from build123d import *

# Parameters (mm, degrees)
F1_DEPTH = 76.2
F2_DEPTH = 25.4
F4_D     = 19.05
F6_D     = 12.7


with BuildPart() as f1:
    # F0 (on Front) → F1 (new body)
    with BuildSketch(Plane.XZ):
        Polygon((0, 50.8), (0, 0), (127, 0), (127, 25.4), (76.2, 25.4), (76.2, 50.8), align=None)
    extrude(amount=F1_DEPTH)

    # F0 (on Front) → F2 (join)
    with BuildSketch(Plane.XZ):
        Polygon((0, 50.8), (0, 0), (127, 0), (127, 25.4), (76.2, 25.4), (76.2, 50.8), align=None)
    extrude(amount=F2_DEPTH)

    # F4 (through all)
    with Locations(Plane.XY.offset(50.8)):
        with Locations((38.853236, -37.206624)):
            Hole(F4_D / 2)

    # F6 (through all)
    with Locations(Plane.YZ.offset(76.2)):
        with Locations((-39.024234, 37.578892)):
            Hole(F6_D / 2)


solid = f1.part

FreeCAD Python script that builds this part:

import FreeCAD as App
import Part
import Sketcher
from FreeCAD import Vector
Q = App.Units.Quantity

doc = App.newDocument("Part")
body = doc.addObject("PartDesign::Body", "Body")

# Sketch on XZ plane
sketch1 = body.newObject("Sketcher::SketchObject", "Sketch")
sketch1.AttachmentSupport = (doc.getObject("XZ_Plane"), [""])
sketch1.MapMode = "FlatFace"
sketch1.addGeometry([
    Part.LineSegment(Vector(0, 51, 0), Vector(0, 0, 0)),  # 0
    Part.LineSegment(Vector(0, 0, 0), Vector(127, 0, 0)),  # 1
    Part.LineSegment(Vector(127, 0, 0), Vector(127, 25, 0)),  # 2
    Part.LineSegment(Vector(127, 25, 0), Vector(76, 25, 0)),  # 3
    Part.LineSegment(Vector(76, 25, 0), Vector(76, 51, 0)),  # 4
    Part.LineSegment(Vector(76, 51, 0), Vector(0, 51, 0)),  # 5
], False)
sketch1.addConstraint([
    Sketcher.Constraint("Coincident", 0, 2, 1, 1),
    Sketcher.Constraint("Coincident", 1, 2, 2, 1),
    Sketcher.Constraint("Coincident", 2, 2, 3, 1),
    Sketcher.Constraint("Coincident", 3, 2, 4, 1),
    Sketcher.Constraint("Coincident", 4, 2, 5, 1),
    Sketcher.Constraint("Coincident", 5, 2, 0, 1),
    Sketcher.Constraint("Vertical", 0),
    Sketcher.Constraint("Horizontal", 1),
    Sketcher.Constraint("Vertical", 2),
    Sketcher.Constraint("Horizontal", 3),
    Sketcher.Constraint("Vertical", 4),
    Sketcher.Constraint("Horizontal", 5),
    Sketcher.Constraint("Coincident", 0, 2, -1, 1),
    Sketcher.Constraint("Equal", 3, 0),
    Sketcher.Constraint("Equal", 2, 4),
    Sketcher.Constraint("DistanceX", 1, 1, 1, 2, Q("5 in")),
    Sketcher.Constraint("DistanceX", 3, 2, 3, 1, Q("2 in")),
])
pad1 = body.newObject("PartDesign::Pad", "Pad")
pad1.Profile = sketch1
pad1.Length = Q("3 in")

# Sketch on XZ plane
sketch2 = body.newObject("Sketcher::SketchObject", "Sketch001")
sketch2.AttachmentSupport = (doc.getObject("XZ_Plane"), [""])
sketch2.MapMode = "FlatFace"
sketch2.addGeometry([
    Part.LineSegment(Vector(0, 51, 0), Vector(0, 0, 0)),  # 0
    Part.LineSegment(Vector(0, 0, 0), Vector(127, 0, 0)),  # 1
    Part.LineSegment(Vector(127, 0, 0), Vector(127, 25, 0)),  # 2
    Part.LineSegment(Vector(127, 25, 0), Vector(76, 25, 0)),  # 3
    Part.LineSegment(Vector(76, 25, 0), Vector(76, 51, 0)),  # 4
    Part.LineSegment(Vector(76, 51, 0), Vector(0, 51, 0)),  # 5
], False)
sketch2.addConstraint([
    Sketcher.Constraint("Coincident", 0, 2, 1, 1),
    Sketcher.Constraint("Coincident", 1, 2, 2, 1),
    Sketcher.Constraint("Coincident", 2, 2, 3, 1),
    Sketcher.Constraint("Coincident", 3, 2, 4, 1),
    Sketcher.Constraint("Coincident", 4, 2, 5, 1),
    Sketcher.Constraint("Coincident", 5, 2, 0, 1),
    Sketcher.Constraint("Vertical", 0),
    Sketcher.Constraint("Horizontal", 1),
    Sketcher.Constraint("Vertical", 2),
    Sketcher.Constraint("Horizontal", 3),
    Sketcher.Constraint("Vertical", 4),
    Sketcher.Constraint("Horizontal", 5),
    Sketcher.Constraint("Coincident", 0, 2, -1, 1),
    Sketcher.Constraint("Equal", 3, 0),
    Sketcher.Constraint("Equal", 2, 4),
    Sketcher.Constraint("DistanceX", 1, 1, 1, 2, Q("5 in")),
    Sketcher.Constraint("DistanceX", 3, 2, 3, 1, Q("2 in")),
])
pad2 = body.newObject("PartDesign::Pad", "Pad001")
pad2.Profile = sketch2
pad2.Length = Q("1 in")

# Sketch on XY plane
sketch3 = body.newObject("Sketcher::SketchObject", "Sketch002")
sketch3.AttachmentSupport = (doc.getObject("XY_Plane"), [""])
sketch3.MapMode = "FlatFace"
sketch3.AttachmentOffset = App.Placement(Vector(0, 0, 2 * 25.4), App.Rotation())
sketch3.addGeometry(Part.Circle(Vector(39, -37, 0), Vector(0, 0, 1), 10), False)
sketch3.addConstraint([
    Sketcher.Constraint("Diameter", 0, Q("0.75 in")),
    Sketcher.Constraint("DistanceX", -1, 1, 0, 3, 38.853236),
    Sketcher.Constraint("DistanceY", 0, 3, -1, 1, 37.206624),
])
doc.recompute()
hole = body.newObject("PartDesign::Hole", "Hole")
hole.Profile = sketch3
hole.ThreadType = "None"
hole.Diameter = Q("0.75 in")
hole.DepthType = "ThroughAll"

# Sketch on YZ plane
sketch4 = body.newObject("Sketcher::SketchObject", "Sketch003")
sketch4.AttachmentSupport = (doc.getObject("YZ_Plane"), [""])
sketch4.MapMode = "FlatFace"
sketch4.AttachmentOffset = App.Placement(Vector(0, 0, 3 * 25.4), App.Rotation())
sketch4.addGeometry(Part.Circle(Vector(-39, 38, 0), Vector(0, 0, 1), 6), False)
sketch4.addConstraint([
    Sketcher.Constraint("Diameter", 0, Q("0.5 in")),
    Sketcher.Constraint("DistanceX", 0, 3, -1, 1, 39.024234),
    Sketcher.Constraint("DistanceY", -1, 1, 0, 3, 37.578892),
])
doc.recompute()
hole2 = body.newObject("PartDesign::Hole", "Hole001")
hole2.Profile = sketch4
hole2.ThreadType = "None"
hole2.Diameter = Q("0.5 in")
hole2.DepthType = "ThroughAll"

doc.recompute()
